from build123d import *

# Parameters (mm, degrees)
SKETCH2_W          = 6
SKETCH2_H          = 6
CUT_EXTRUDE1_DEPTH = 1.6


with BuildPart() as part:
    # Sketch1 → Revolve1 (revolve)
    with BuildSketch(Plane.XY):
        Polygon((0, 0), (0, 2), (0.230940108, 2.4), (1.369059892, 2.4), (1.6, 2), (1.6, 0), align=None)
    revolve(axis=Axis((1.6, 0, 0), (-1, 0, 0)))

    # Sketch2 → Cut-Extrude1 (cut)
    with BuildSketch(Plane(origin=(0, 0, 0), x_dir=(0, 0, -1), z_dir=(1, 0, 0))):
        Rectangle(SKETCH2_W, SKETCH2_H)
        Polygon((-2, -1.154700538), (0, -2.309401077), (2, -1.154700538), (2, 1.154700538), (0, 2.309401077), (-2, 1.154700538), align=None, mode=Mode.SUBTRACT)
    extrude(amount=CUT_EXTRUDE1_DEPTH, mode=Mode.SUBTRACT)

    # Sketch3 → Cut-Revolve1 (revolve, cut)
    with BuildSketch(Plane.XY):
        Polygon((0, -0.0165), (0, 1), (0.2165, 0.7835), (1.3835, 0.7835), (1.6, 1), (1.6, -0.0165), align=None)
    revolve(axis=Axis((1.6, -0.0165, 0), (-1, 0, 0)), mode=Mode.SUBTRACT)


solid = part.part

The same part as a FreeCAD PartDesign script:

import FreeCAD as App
import Part
import Sketcher
Q = App.Units.Quantity

doc = App.newDocument("Part")
body = doc.addObject("PartDesign::Body", "Body")

# Sketch on XY plane
sketch1 = body.newObject("Sketcher::SketchObject", "Sketch")
sketch1.AttachmentSupport = (doc.getObject("XY_Plane"), [""])
sketch1.MapMode = "FlatFace"
sketch1.addGeometry([
    Part.LineSegment(App.Vector(0, 2, 0), App.Vector(0, 0, 0)),  # 0
    Part.LineSegment(App.Vector(0, 0, 0), App.Vector(1.6, 0, 0)),  # 1
    Part.LineSegment(App.Vector(1.6, 0, 0), App.Vector(1.6, 2, 0)),  # 2
    Part.LineSegment(App.Vector(1.6, 2, 0), App.Vector(1.37, 2.4, 0)),  # 3
    Part.LineSegment(App.Vector(1.37, 2.4, 0), App.Vector(0.23, 2.4, 0)),  # 4
    Part.LineSegment(App.Vector(0.23, 2.4, 0), App.Vector(0, 2, 0)),  # 5
], False)
sketch1.addConstraint([
    Sketcher.Constraint("Coincident", 0, 2, 1, 1),
    Sketcher.Constraint("Coincident", 1, 2, 2, 1),
    Sketcher.Constraint("Coincident", 2, 2, 3, 1),
    Sketcher.Constraint("Coincident", 3, 2, 4, 1),
    Sketcher.Constraint("Coincident", 4, 2, 5, 1),
    Sketcher.Constraint("Coincident", 5, 2, 0, 1),
    Sketcher.Constraint("Vertical", 0),
    Sketcher.Constraint("Horizontal", 1),
    Sketcher.Constraint("Vertical", 2),
    Sketcher.Constraint("Horizontal", 4),
    Sketcher.Constraint("Coincident", 0, 2, -1, 1),
    Sketcher.Constraint("Horizontal", 2, 2, 5, 2),
    Sketcher.Constraint("Equal", 3, 5),
    Sketcher.Constraint("DistanceY", 0, 2, 0, 1, 2.0),
    Sketcher.Constraint("Angle", 3, Q("120 deg")),
    Sketcher.Constraint("DistanceX", 1, 1, 1, 2, 1.6),
    Sketcher.Constraint("DistanceY", -1, 1, 3, 2, 2.4),
])
revolution = body.newObject("PartDesign::Revolution", "Revolution")
revolution.Profile = sketch1
revolution.ReferenceAxis = (sketch1, ["H_Axis"])
revolution.Angle = 360

# Sketch on YZ plane
sketch2 = body.newObject("Sketcher::SketchObject", "Sketch001")
sketch2.AttachmentSupport = (doc.getObject("YZ_Plane"), [""])
sketch2.MapMode = "FlatFace"
sketch2.addGeometry([
    Part.LineSegment(App.Vector(3, 3, 0), App.Vector(-3, 3, 0)),  # 0
    Part.LineSegment(App.Vector(-3, 3, 0), App.Vector(-3, -3, 0)),  # 1
    Part.LineSegment(App.Vector(-3, -3, 0), App.Vector(3, -3, 0)),  # 2
    Part.LineSegment(App.Vector(3, -3, 0), App.Vector(3, 3, 0)),  # 3
    Part.LineSegment(App.Vector(-2.3, 0, 0), App.Vector(-1.2, 2, 0)),  # 4
    Part.LineSegment(App.Vector(-1.2, 2, 0), App.Vector(1.2, 2, 0)),  # 5
    Part.LineSegment(App.Vector(1.2, 2, 0), App.Vector(2.3, 0, 0)),  # 6
    Part.LineSegment(App.Vector(2.3, 0, 0), App.Vector(1.2, -2, 0)),  # 7
    Part.LineSegment(App.Vector(1.2, -2, 0), App.Vector(-1.2, -2, 0)),  # 8
    Part.LineSegment(App.Vector(-1.2, -2, 0), App.Vector(-2.3, 0, 0)),  # 9
], False)
sketch2.addConstraint([
    Sketcher.Constraint("Coincident", 0, 2, 1, 1),
    Sketcher.Constraint("Coincident", 1, 2, 2, 1),
    Sketcher.Constraint("Coincident", 2, 2, 3, 1),
    Sketcher.Constraint("Coincident", 3, 2, 0, 1),
    Sketcher.Constraint("Coincident", 4, 2, 5, 1),
    Sketcher.Constraint("Coincident", 5, 2, 6, 1),
    Sketcher.Constraint("Coincident", 6, 2, 7, 1),
    Sketcher.Constraint("Coincident", 7, 2, 8, 1),
    Sketcher.Constraint("Coincident", 8, 2, 9, 1),
    Sketcher.Constraint("Coincident", 9, 2, 4, 1),
    Sketcher.Constraint("Horizontal", 0),
    Sketcher.Constraint("Vertical", 1),
    Sketcher.Constraint("Horizontal", 2),
    Sketcher.Constraint("Vertical", 3),
    Sketcher.Constraint("Horizontal", 5),
    Sketcher.Constraint("Horizontal", 8),
    Sketcher.Constraint("Symmetric", 0, 2, 2, 2, -1, 1),
    Sketcher.Constraint("Symmetric", 4, 2, 7, 2, -1, 1),
    Sketcher.Constraint("Symmetric", 6, 2, 9, 2, -1, 1),
    Sketcher.Constraint("PointOnObject", 6, 2, -1),
    Sketcher.Constraint("Parallel", 6, 9),
    Sketcher.Constraint("Vertical", 5, 2, 7, 2),
    Sketcher.Constraint("Equal", 2, 1),
    Sketcher.Constraint("DistanceX", 0, 2, 0, 1, 6.0),
    Sketcher.Constraint("Angle", 4, Q("60 deg")),
    Sketcher.Constraint("DistanceY", -1, 1, 4, 2, 2.0),
    Sketcher.Constraint("DistanceX", 5, 1, 5, 2, 2.309401),
])
pocket1 = body.newObject("PartDesign::Pocket", "Pocket")
pocket1.Profile = sketch2
pocket1.Length = 1.6
pocket1.Reversed = True

# Sketch on XY plane
sketch3 = body.newObject("Sketcher::SketchObject", "Sketch002")
sketch3.AttachmentSupport = (doc.getObject("XY_Plane"), [""])
sketch3.MapMode = "FlatFace"
sketch3.addGeometry([
    Part.LineSegment(App.Vector(0, 1, 0), App.Vector(0, -0.02, 0)),  # 0
    Part.LineSegment(App.Vector(0, -0.02, 0), App.Vector(1.6, -0.02, 0)),  # 1
    Part.LineSegment(App.Vector(1.6, -0.02, 0), App.Vector(1.6, 1, 0)),  # 2
    Part.LineSegment(App.Vector(1.6, 1, 0), App.Vector(1.38, 0.78, 0)),  # 3
    Part.LineSegment(App.Vector(1.38, 0.78, 0), App.Vector(0.22, 0.78, 0)),  # 4
    Part.LineSegment(App.Vector(0.22, 0.78, 0), App.Vector(0, 1, 0)),  # 5
], False)
sketch3.addGeometry(Part.LineSegment(App.Vector(1.6, -0.02, 0), App.Vector(0, -0.02, 0)), True)  # axis
sketch3.addConstraint([
    Sketcher.Constraint("Coincident", 0, 2, 1, 1),
    Sketcher.Constraint("Coincident", 1, 2, 2, 1),
    Sketcher.Constraint("Coincident", 2, 2, 3, 1),
    Sketcher.Constraint("Coincident", 3, 2, 4, 1),
    Sketcher.Constraint("Coincident", 4, 2, 5, 1),
    Sketcher.Constraint("Coincident", 5, 2, 0, 1),
    Sketcher.Constraint("Vertical", 0),
    Sketcher.Constraint("Horizontal", 1),
    Sketcher.Constraint("Vertical", 2),
    Sketcher.Constraint("Horizontal", 4),
    Sketcher.Constraint("Horizontal", 6),
    Sketcher.Constraint("Coincident", 6, 1, 1, 2),
    Sketcher.Constraint("PointOnObject", 0, 2, -2),
    Sketcher.Constraint("PointOnObject", 6, 2, -2),
    Sketcher.Constraint("Perpendicular", 3, 5),
    Sketcher.Constraint("Horizontal", 2, 2, 5, 2),
    Sketcher.Constraint("Equal", 3, 5),
    Sketcher.Constraint("DistanceX", 1, 1, 1, 2, 1.6),
    Sketcher.Constraint("DistanceY", -1, 1, 2, 2, 1.0),
    Sketcher.Constraint("DistanceY", 1, 2, 3, 2, 0.8),
    Sketcher.Constraint("DistanceX", 4, 2, 4, 1, 1.167),
])
groove = body.newObject("PartDesign::Groove", "Groove")
groove.Profile = sketch3
groove.ReferenceAxis = (sketch3, ["Axis0"])
groove.Angle = 360

doc.recompute()
